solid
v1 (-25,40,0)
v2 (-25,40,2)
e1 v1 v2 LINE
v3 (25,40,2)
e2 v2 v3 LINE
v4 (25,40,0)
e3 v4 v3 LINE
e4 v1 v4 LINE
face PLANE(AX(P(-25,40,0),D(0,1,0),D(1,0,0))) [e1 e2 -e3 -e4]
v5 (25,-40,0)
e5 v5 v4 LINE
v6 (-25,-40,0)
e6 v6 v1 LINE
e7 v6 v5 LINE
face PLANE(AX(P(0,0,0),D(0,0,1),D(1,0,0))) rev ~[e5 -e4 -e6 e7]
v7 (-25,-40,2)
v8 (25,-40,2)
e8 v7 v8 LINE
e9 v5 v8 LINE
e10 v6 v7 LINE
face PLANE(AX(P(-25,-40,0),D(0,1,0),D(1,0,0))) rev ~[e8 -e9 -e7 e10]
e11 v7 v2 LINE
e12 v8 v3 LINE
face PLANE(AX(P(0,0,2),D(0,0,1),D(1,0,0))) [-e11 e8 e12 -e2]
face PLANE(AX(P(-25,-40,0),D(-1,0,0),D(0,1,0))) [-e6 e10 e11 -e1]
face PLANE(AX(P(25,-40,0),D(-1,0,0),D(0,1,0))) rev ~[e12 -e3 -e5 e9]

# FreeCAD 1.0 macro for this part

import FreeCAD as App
import Part
import Sketcher
from FreeCAD import Vector


def add_polygon(sketch, points):
    """Adds a closed chain of lines whose ends are joined by coincident constraints."""
    first, n = sketch.GeometryCount, len(points)
    for a, b in zip(points, points[1:] + points[:1]):
        sketch.addGeometry(Part.LineSegment(App.Vector(*a, 0), App.Vector(*b, 0)), False)
    for i in range(n):
        sketch.addConstraint(Sketcher.Constraint("Coincident", first + i, 2, first + (i + 1) % n, 1))

doc = App.newDocument("Part")
body = doc.addObject("PartDesign::Body", "Body")

sketch1 = body.newObject("Sketcher::SketchObject", "Sketch")
sketch1.AttachmentSupport = (doc.getObject("XY_Plane"), [""])
sketch1.MapMode = "FlatFace"
add_polygon(sketch1, [(-25, 40), (-25, -40), (25, -40), (25, 40)])
sketch1.addConstraint(Sketcher.Constraint("Vertical", 0))
sketch1.addConstraint(Sketcher.Constraint("Horizontal", 1))
sketch1.addConstraint(Sketcher.Constraint("Vertical", 2))
sketch1.addConstraint(Sketcher.Constraint("Horizontal", 3))
sketch1.addConstraint(Sketcher.Constraint("Symmetric", 0, 2, 2, 2, -1, 1))
sketch1.addConstraint(Sketcher.Constraint("DistanceX", 1, 1, 1, 2, 50.0))
sketch1.addConstraint(Sketcher.Constraint("DistanceY", 0, 2, 0, 1, 80.0))
pad1 = body.newObject("PartDesign::Pad", "Pad")
pad1.Profile = sketch1
pad1.Length = 2

doc.recompute()
